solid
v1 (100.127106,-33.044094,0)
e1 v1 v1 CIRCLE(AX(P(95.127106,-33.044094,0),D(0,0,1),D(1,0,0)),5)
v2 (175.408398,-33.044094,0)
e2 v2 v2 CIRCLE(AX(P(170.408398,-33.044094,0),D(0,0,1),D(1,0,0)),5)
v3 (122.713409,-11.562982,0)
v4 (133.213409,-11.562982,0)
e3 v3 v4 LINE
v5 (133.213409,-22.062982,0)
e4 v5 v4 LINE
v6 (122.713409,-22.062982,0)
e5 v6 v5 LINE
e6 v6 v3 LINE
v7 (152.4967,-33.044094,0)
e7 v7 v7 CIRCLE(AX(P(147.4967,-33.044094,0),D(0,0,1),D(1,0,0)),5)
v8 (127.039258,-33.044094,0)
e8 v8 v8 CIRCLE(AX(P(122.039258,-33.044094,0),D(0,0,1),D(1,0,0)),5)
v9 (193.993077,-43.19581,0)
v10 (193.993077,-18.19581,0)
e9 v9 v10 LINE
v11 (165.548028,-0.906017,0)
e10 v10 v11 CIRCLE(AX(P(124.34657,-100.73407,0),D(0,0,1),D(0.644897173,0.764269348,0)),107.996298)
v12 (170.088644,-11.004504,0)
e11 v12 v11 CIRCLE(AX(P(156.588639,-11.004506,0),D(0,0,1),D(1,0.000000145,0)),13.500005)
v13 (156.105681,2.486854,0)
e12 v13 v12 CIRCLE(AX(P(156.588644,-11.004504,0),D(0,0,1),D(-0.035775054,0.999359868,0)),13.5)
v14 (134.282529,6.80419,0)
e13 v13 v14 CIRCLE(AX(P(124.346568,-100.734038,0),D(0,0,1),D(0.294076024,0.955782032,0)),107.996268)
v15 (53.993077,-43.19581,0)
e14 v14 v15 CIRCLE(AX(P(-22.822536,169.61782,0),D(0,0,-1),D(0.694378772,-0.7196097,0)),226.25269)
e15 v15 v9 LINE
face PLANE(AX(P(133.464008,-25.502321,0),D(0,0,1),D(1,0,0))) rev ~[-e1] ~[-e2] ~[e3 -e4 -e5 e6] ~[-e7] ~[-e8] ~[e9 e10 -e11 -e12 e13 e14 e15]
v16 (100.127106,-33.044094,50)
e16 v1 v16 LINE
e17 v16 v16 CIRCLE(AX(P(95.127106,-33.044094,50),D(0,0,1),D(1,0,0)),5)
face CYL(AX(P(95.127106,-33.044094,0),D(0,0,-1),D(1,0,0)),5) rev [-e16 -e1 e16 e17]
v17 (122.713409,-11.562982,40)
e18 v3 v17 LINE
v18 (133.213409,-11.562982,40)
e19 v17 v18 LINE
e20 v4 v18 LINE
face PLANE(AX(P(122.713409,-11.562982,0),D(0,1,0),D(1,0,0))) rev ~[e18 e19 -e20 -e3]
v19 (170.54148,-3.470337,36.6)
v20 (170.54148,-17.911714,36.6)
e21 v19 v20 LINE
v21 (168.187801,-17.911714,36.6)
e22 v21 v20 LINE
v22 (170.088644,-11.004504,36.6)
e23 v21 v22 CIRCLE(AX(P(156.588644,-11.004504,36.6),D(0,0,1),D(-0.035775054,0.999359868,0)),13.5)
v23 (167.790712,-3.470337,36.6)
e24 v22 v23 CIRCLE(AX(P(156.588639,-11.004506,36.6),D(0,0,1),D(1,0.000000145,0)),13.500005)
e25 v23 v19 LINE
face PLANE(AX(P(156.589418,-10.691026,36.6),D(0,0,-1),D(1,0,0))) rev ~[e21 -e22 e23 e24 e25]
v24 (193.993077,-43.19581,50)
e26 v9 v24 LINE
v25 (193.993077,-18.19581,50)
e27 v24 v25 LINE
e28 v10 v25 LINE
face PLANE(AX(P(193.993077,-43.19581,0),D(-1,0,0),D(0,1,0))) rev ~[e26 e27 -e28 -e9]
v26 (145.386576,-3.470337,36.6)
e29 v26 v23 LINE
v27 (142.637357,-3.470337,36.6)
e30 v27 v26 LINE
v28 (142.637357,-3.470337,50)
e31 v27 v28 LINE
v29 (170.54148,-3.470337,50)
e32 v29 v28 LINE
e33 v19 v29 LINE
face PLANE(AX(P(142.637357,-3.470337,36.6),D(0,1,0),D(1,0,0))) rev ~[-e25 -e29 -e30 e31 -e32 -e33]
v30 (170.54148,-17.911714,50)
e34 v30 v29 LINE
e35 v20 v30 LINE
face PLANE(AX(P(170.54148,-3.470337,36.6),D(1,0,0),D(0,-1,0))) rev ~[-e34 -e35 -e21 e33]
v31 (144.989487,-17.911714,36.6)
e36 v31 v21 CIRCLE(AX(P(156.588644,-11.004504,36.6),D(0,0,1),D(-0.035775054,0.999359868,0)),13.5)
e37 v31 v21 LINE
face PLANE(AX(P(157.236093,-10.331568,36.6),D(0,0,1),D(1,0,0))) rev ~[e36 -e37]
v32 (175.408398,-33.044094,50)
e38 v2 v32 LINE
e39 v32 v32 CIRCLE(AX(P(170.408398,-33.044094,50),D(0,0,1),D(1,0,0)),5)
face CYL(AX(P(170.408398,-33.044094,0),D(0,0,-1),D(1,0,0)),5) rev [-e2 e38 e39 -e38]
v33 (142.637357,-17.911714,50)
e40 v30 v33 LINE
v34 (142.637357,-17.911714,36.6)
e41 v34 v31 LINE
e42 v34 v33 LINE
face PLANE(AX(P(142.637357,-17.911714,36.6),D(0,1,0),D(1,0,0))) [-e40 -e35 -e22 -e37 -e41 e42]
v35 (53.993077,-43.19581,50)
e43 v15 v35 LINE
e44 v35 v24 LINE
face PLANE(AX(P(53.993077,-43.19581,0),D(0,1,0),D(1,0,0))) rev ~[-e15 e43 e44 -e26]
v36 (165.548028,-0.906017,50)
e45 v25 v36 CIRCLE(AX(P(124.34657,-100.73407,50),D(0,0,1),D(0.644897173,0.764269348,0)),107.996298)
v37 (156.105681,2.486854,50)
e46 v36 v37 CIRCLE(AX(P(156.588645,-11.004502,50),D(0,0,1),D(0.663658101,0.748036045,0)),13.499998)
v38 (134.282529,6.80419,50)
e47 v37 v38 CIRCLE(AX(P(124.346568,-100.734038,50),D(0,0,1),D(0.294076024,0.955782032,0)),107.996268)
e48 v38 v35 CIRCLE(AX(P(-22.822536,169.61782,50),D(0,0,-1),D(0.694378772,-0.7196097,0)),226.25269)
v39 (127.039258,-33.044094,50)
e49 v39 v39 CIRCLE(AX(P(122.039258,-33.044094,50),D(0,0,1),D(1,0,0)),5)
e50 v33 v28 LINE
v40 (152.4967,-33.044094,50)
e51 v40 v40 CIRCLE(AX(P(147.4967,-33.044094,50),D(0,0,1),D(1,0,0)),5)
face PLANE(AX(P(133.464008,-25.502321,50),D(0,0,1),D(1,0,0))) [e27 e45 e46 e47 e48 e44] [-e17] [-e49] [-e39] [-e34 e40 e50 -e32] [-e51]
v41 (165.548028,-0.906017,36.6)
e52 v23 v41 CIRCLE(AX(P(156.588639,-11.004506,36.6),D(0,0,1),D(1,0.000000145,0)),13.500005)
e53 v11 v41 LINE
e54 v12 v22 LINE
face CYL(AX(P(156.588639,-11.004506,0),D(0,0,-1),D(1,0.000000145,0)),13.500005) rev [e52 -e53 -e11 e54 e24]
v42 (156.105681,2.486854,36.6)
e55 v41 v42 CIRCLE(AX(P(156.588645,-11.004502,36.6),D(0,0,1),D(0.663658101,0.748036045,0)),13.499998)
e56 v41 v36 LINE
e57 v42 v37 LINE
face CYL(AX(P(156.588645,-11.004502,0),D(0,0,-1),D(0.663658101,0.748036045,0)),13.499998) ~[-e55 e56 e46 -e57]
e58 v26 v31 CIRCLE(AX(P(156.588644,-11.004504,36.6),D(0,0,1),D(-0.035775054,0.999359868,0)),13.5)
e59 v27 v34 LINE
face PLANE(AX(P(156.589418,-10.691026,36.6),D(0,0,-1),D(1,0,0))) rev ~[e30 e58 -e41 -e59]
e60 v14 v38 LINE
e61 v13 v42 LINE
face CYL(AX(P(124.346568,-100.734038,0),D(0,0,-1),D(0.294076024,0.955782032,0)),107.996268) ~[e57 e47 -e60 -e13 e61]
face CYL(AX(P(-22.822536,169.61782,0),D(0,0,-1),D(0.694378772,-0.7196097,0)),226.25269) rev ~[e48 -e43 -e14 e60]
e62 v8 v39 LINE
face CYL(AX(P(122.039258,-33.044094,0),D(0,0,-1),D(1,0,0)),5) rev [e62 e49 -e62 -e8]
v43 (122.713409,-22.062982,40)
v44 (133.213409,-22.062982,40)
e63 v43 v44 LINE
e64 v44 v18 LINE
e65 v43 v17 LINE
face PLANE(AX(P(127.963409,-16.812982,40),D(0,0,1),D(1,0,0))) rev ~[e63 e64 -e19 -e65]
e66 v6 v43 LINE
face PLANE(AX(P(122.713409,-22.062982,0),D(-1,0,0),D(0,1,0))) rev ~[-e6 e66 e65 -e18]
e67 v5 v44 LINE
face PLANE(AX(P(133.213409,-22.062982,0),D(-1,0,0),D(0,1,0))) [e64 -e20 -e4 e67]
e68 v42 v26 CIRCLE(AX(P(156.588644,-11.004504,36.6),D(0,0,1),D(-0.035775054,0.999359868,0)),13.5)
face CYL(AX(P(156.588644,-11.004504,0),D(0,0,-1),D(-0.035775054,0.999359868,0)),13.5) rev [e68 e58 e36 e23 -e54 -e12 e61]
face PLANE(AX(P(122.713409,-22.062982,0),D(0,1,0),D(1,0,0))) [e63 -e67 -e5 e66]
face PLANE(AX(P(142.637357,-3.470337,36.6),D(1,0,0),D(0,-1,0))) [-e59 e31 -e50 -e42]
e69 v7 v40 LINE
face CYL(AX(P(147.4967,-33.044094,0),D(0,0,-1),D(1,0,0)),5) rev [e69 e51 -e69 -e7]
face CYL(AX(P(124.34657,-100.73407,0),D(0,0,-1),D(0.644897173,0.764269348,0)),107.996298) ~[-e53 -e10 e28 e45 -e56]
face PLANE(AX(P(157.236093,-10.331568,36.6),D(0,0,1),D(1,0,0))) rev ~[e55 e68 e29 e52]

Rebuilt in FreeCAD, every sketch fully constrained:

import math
import FreeCAD as App
import Part
import Sketcher

V = App.Vector

doc = App.newDocument("Part")
params = doc.addObject("Spreadsheet::Sheet", "Params")
for row, (alias, value) in enumerate([
    ("sketch1_diameter", "10 mm"),
    ("sketch1_width", "140 mm"),
    ("sketch1_height", "25 mm"),
    ("pad1_length", "50 mm"),
    ("sketch2_radius", "13.5 mm"),
    ("pocket1_length", "36.6 mm"),
    ("sketch3_diameter", "9.6 mm"),
    ("pocket2_length", "2.7 mm"),
    ("sketch4_width", "10.5 mm"),
    ("pocket3_length", "40 mm"),
    ("pocket4_length", "25 mm"),
], start=1):
    params.set(f"A{row}", alias)
    params.set(f"B{row}", "=" + value)
    params.setAlias(f"B{row}", alias)

body = doc.addObject("PartDesign::Body", "Body")

# Sketch on XY plane
sketch1 = body.newObject("Sketcher::SketchObject", "Sketch")
sketch1.AttachmentSupport = (doc.getObject("XY_Plane"), [""])
sketch1.MapMode = "FlatFace"
sketch1.addGeometry([
    Part.ArcOfCircle(Part.Circle(V(-23, 170, 0), V(0, 0, 1), 226), math.radians(-70), math.radians(-46)),  # 0
    Part.LineSegment(V(54, -43, 0), V(194, -43, 0)),  # 1
    Part.LineSegment(V(194, -43, 0), V(194, -18, 0)),  # 2
    Part.ArcOfCircle(Part.Circle(V(124, -101, 0), V(0, 0, 1), 108), math.radians(49.84), math.radians(67.57)),  # 3
    Part.ArcOfCircle(Part.Circle(V(157, -11, 0), V(0, 0, 1), 13), math.radians(48), math.radians(92)),  # 4
    Part.ArcOfCircle(Part.Circle(V(124, -101, 0), V(0, 0, 1), 108), math.radians(72.9), math.radians(84.72)),  # 5
    Part.Circle(V(95, -33, 0), V(0, 0, 1), 5),  # 6
    Part.Circle(V(122, -33, 0), V(0, 0, 1), 5),  # 7
    Part.Circle(V(147, -33, 0), V(0, 0, 1), 5),  # 8
    Part.Circle(V(170, -33, 0), V(0, 0, 1), 5),  # 9
], False)
sketch1.addConstraint([
    Sketcher.Constraint("Coincident", 0, 1, 1, 1),
    Sketcher.Constraint("Coincident", 1, 2, 2, 1),
    Sketcher.Constraint("Coincident", 2, 2, 3, 1),
    Sketcher.Constraint("Coincident", 3, 2, 4, 1),
    Sketcher.Constraint("Coincident", 4, 2, 5, 1),
    Sketcher.Constraint("Coincident", 5, 2, 0, 2),
    Sketcher.Constraint("Horizontal", 1),
    Sketcher.Constraint("Vertical", 2),
    Sketcher.Constraint("Equal", 6, 7),
    Sketcher.Constraint("Equal", 7, 8),
    Sketcher.Constraint("Equal", 8, 9),
    Sketcher.Constraint("Horizontal", 6, 3, 7, 3),
    Sketcher.Constraint("Horizontal", 7, 3, 8, 3),
    Sketcher.Constraint("Horizontal", 8, 3, 9, 3),
    Sketcher.Constraint("Vertical", 3, 3, 5, 3),
    Sketcher.Constraint("Diameter", 6, 10.0),
    Sketcher.Constraint("DistanceX", 1, 1, 1, 2, 140.0),
    Sketcher.Constraint("DistanceY", 2, 1, 2, 2, 25.0),
    Sketcher.Constraint("Radius", 0, 226.25269),
    Sketcher.Constraint("Radius", 3, 107.996298),
    Sketcher.Constraint("Radius", 4, 13.499998),
    Sketcher.Constraint("Radius", 5, 107.996268),
    Sketcher.Constraint("DistanceY", 4, 3, -1, 1, 11.004502),
    Sketcher.Constraint("DistanceX", -1, 1, 8, 3, 147.4967),
    Sketcher.Constraint("DistanceX", -1, 1, 9, 3, 170.408398),
    Sketcher.Constraint("DistanceX", 5, 2, 3, 2, 31.265499),
    Sketcher.Constraint("DistanceY", -1, 1, 0, 3, 169.61782),
    Sketcher.Constraint("DistanceX", -1, 1, 3, 3, 124.34657),
    Sketcher.Constraint("DistanceY", 3, 3, -1, 1, 100.73407),
    Sketcher.Constraint("DistanceY", 5, 3, -1, 1, 100.734038),
    Sketcher.Constraint("DistanceX", -1, 1, 7, 3, 122.039258),
    Sketcher.Constraint("DistanceY", 0, 1, -1, 1, 43.19581),
    Sketcher.Constraint("DistanceX", 6, 3, 4, 3, 61.461539),
    Sketcher.Constraint("DistanceY", 8, 3, 4, 2, 35.530948),
])
sketch1.setExpression("Constraints[15]", "Params.sketch1_diameter")
sketch1.setExpression("Constraints[16]", "Params.sketch1_width")
sketch1.setExpression("Constraints[17]", "Params.sketch1_height")
pad1 = body.newObject("PartDesign::Pad", "Pad")
pad1.Profile = sketch1
pad1.setExpression("Length", "Params.pad1_length")

# Sketch on XY plane
sketch2 = body.newObject("Sketcher::SketchObject", "Sketch001")
sketch2.AttachmentSupport = (doc.getObject("XY_Plane"), [""])
sketch2.MapMode = "FlatFace"
sketch2.addGeometry([
    Part.ArcOfCircle(Part.Circle(V(157, -11, 0), V(0, 0, 1), 13), math.radians(48), math.radians(92)),
    Part.ArcOfCircle(Part.Circle(V(157, -11, 0), V(0, 0, 1), 13), math.radians(92), math.radians(360)),
    Part.ArcOfCircle(Part.Circle(V(157, -11, 0), V(0, 0, 1), 14), math.radians(0), math.radians(48)),
], False)
sketch2.addConstraint([
    Sketcher.Constraint("Tangent", 0, 2, 1, 1),
    Sketcher.Constraint("Tangent", 1, 2, 2, 1),
    Sketcher.Constraint("Tangent", 2, 2, 0, 1),
    Sketcher.Constraint("Horizontal", 2, 3, 1, 2),
    Sketcher.Constraint("Radius", 1, 13.5),
    Sketcher.Constraint("DistanceY", 0, 3, -1, 1, 11.004502),
    Sketcher.Constraint("DistanceX", -1, 1, 2, 3, 156.588639),
    Sketcher.Constraint("DistanceX", -1, 1, 0, 2, 156.105681),
    Sketcher.Constraint("DistanceY", 2, 2, 0, 2, 3.392871),
])
sketch2.setExpression("Constraints[4]", "Params.sketch2_radius")
pocket1 = body.newObject("PartDesign::Pocket", "Pocket")
pocket1.Profile = sketch2
pocket1.setExpression("Length", "Params.pocket1_length")
pocket1.Reversed = True

# Sketch on XY plane
sketch3 = body.newObject("Sketcher::SketchObject", "Sketch002")
sketch3.AttachmentSupport = (doc.getObject("XY_Plane"), [""])
sketch3.MapMode = "FlatFace"
sketch3.AttachmentOffset = App.Placement(V(0, 0, 36.6), App.Rotation())
sketch3.addGeometry(Part.Circle(V(156.6, -11, 0), V(0, 0, 1), 4.8), False)
sketch3.addConstraint([
    Sketcher.Constraint("Diameter", 0, 9.6),
    Sketcher.Constraint("DistanceX", -1, 1, 0, 3, 156.588644),
    Sketcher.Constraint("DistanceY", 0, 3, -1, 1, 11.004504),
])
sketch3.setExpression("Constraints[0]", "Params.sketch3_diameter")
pocket2 = body.newObject("PartDesign::Pocket", "Pocket001")
pocket2.Profile = sketch3
pocket2.setExpression("Length", "Params.pocket2_length")
pocket2.Reversed = True

# Sketch on XY plane
sketch4 = body.newObject("Sketcher::SketchObject", "Sketch003")
sketch4.AttachmentSupport = (doc.getObject("XY_Plane"), [""])
sketch4.MapMode = "FlatFace"
sketch4.addGeometry([
    Part.LineSegment(V(123, -12, 0), V(123, -22, 0)),
    Part.LineSegment(V(123, -22, 0), V(133, -22, 0)),
    Part.LineSegment(V(133, -22, 0), V(133, -12, 0)),
    Part.LineSegment(V(133, -12, 0), V(123, -12, 0)),
], False)
sketch4.addConstraint([
    Sketcher.Constraint("Coincident", 0, 2, 1, 1),
    Sketcher.Constraint("Coincident", 1, 2, 2, 1),
    Sketcher.Constraint("Coincident", 2, 2, 3, 1),
    Sketcher.Constraint("Coincident", 3, 2, 0, 1),
    Sketcher.Constraint("Vertical", 0),
    Sketcher.Constraint("Horizontal", 1),
    Sketcher.Constraint("Vertical", 2),
    Sketcher.Constraint("Horizontal", 3),
    Sketcher.Constraint("Equal", 3, 0),
    Sketcher.Constraint("DistanceX", 1, 1, 1, 2, 10.5),
    Sketcher.Constraint("DistanceX", -1, 1, 0, 2, 122.713409),
    Sketcher.Constraint("DistanceY", 0, 2, -1, 1, 22.062982),
])
sketch4.setExpression("Constraints[9]", "Params.sketch4_width")
pocket3 = body.newObject("PartDesign::Pocket", "Pocket002")
pocket3.Profile = sketch4
pocket3.setExpression("Length", "Params.pocket3_length")
pocket3.Reversed = True

# Sketch on XY plane
sketch5 = body.newObject("Sketcher::SketchObject", "Sketch004")
sketch5.AttachmentSupport = (doc.getObject("XY_Plane"), [""])
sketch5.MapMode = "FlatFace"
sketch5.AttachmentOffset = App.Placement(V(0, 0, 36.6), App.Rotation())
sketch5.addGeometry([
    Part.LineSegment(V(143, -18, 0), V(143, -3, 0)),
    Part.LineSegment(V(143, -3, 0), V(171, -3, 0)),
    Part.LineSegment(V(171, -3, 0), V(171, -18, 0)),
    Part.LineSegment(V(171, -18, 0), V(143, -18, 0)),
], False)
sketch5.addConstraint([
    Sketcher.Constraint("Coincident", 0, 2, 1, 1),
    Sketcher.Constraint("Coincident", 1, 2, 2, 1),
    Sketcher.Constraint("Coincident", 2, 2, 3, 1),
    Sketcher.Constraint("Coincident", 3, 2, 0, 1),
    Sketcher.Constraint("Vertical", 0),
    Sketcher.Constraint("Horizontal", 1),
    Sketcher.Constraint("Vertical", 2),
    Sketcher.Constraint("Horizontal", 3),
    Sketcher.Constraint("DistanceX", 1, 1, 1, 2, 27.904123),
    Sketcher.Constraint("DistanceY", 0, 1, 0, 2, 14.441377),
    Sketcher.Constraint("DistanceX", -1, 1, 1, 2, 170.54148),
    Sketcher.Constraint("DistanceY", 0, 2, -1, 1, 3.470337),
])
pocket4 = body.newObject("PartDesign::Pocket", "Pocket003")
pocket4.Profile = sketch5
pocket4.setExpression("Length", "Params.pocket4_length")
pocket4.Reversed = True

doc.recompute()
